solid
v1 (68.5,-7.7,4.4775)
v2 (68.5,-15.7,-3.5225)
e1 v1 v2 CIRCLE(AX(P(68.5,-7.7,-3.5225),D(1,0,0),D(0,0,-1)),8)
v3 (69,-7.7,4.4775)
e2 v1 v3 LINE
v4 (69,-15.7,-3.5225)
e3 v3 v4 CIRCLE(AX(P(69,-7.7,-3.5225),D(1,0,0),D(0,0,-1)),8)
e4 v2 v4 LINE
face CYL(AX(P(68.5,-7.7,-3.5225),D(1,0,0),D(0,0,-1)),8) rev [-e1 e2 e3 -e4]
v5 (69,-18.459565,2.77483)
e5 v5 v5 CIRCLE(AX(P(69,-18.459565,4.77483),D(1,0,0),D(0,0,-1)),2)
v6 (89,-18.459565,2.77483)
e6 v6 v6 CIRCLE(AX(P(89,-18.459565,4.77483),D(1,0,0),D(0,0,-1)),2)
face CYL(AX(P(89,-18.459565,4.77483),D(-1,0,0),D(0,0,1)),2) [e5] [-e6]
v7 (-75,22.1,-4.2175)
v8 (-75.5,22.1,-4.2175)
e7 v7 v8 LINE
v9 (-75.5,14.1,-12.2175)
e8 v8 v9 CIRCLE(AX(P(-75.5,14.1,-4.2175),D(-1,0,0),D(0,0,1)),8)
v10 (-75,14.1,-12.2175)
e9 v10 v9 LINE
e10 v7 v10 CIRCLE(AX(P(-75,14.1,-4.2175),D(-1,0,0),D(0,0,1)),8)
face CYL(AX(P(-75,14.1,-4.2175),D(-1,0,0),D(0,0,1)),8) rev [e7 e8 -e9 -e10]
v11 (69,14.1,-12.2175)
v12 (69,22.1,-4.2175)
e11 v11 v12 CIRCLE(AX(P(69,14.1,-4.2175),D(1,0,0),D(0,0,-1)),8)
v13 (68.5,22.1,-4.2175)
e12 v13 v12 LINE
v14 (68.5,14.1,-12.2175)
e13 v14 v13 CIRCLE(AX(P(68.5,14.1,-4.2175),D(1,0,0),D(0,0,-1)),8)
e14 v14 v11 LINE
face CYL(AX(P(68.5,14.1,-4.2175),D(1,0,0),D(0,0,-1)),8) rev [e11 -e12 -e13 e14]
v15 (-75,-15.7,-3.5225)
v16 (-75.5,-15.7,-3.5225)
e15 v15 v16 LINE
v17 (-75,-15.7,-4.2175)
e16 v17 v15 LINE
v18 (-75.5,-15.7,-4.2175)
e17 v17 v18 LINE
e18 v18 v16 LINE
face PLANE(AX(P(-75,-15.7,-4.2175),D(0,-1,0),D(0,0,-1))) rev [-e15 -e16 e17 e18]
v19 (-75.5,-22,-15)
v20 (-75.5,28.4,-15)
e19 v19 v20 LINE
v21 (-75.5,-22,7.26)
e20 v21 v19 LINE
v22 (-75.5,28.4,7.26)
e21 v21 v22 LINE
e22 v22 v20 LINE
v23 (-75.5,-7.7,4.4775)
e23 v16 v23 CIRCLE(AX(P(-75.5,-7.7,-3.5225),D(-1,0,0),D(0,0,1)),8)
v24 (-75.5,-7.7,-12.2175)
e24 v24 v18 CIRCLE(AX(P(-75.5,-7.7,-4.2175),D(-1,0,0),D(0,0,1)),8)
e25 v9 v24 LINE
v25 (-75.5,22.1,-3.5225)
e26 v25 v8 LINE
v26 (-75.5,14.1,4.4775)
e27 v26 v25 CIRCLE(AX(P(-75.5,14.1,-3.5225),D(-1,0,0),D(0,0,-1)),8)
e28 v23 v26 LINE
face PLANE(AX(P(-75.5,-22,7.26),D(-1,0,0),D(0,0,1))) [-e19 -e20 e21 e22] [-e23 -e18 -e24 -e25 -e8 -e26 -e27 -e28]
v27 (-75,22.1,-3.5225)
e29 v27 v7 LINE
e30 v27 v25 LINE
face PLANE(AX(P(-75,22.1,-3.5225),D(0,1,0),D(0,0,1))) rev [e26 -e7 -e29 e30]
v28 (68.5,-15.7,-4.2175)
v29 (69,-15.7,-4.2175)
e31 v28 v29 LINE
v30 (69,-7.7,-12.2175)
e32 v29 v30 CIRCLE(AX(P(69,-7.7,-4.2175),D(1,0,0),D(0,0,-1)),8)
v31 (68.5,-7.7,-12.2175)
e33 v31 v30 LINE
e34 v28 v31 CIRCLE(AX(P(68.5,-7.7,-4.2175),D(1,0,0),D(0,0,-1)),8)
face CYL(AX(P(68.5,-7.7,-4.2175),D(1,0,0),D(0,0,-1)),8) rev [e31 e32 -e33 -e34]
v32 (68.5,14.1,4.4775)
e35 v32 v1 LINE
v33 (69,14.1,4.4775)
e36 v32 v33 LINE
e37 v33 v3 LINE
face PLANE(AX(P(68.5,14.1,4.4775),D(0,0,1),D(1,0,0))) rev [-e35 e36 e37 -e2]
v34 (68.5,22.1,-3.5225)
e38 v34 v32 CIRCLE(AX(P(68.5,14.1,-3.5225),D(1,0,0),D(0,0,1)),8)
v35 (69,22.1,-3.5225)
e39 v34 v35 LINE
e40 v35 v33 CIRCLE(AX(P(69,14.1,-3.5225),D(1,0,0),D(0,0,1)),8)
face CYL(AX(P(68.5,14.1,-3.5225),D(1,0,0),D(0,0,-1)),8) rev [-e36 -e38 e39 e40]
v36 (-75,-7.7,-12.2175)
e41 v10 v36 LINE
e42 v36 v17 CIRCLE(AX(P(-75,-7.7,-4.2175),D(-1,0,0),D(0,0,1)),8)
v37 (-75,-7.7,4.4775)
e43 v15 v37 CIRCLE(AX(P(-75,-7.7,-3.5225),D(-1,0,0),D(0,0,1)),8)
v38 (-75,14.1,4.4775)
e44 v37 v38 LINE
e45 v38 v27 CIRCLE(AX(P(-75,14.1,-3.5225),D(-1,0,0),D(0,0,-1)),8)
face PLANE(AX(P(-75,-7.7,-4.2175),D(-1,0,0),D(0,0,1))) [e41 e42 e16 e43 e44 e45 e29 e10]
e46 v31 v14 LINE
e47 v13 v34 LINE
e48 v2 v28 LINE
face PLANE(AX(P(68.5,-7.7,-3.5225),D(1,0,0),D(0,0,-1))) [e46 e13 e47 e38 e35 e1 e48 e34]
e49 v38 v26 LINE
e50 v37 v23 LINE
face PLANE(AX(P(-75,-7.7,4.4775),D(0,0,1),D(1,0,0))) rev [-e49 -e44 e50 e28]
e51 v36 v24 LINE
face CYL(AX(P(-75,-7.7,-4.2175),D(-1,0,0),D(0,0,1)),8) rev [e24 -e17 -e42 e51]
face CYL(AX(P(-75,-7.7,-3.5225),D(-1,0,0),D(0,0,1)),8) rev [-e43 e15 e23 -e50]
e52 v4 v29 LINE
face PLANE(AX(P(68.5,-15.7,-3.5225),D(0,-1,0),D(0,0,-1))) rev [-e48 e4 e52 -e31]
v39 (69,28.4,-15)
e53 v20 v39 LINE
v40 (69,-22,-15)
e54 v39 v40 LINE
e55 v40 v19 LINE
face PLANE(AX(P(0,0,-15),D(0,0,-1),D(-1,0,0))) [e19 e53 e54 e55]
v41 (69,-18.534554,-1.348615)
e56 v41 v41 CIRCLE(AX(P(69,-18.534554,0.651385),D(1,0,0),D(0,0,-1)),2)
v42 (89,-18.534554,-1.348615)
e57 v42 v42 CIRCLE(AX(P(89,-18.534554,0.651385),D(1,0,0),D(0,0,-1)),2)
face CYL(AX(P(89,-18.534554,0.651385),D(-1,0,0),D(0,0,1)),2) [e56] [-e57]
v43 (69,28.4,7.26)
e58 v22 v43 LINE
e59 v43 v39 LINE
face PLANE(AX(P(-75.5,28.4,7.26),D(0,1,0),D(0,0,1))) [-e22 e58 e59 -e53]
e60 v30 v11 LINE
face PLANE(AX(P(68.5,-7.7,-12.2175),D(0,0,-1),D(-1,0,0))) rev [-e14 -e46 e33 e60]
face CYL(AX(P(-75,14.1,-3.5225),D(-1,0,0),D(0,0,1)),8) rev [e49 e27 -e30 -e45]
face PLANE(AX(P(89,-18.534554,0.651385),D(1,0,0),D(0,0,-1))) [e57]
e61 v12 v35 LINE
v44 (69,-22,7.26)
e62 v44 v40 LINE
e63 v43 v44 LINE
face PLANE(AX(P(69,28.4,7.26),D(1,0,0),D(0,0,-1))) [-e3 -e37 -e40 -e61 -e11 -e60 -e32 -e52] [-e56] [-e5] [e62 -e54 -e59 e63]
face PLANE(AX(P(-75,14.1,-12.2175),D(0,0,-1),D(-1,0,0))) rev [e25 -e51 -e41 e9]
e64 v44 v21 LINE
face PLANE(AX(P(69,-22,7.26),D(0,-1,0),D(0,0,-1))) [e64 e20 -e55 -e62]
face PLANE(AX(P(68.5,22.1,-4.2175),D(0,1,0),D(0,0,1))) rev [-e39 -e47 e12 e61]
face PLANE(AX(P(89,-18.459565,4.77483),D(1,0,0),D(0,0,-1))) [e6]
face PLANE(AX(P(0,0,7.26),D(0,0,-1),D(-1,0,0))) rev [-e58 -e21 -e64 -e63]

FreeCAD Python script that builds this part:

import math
import FreeCAD as App
import Part
import Sketcher

V = App.Vector

doc = App.newDocument("Part")
body = doc.addObject("PartDesign::Body", "Body")

# Sketch on XY plane
sketch1 = doc.addObject("Sketcher::SketchObject", "Sketch")
body.addObject(sketch1)
sketch1.AttachmentSupport = (doc.XY_Plane, [""])
sketch1.MapMode = "FlatFace"
sketch1.AttachmentOffset = App.Placement(V(0, 0, -15), App.Rotation())
sketch1.addGeometry(Part.LineSegment(V(69, 28.4, 0), V(69, -22, 0)), False)
sketch1.addGeometry(Part.LineSegment(V(69, -22, 0), V(-75.5, -22, 0)), False)
sketch1.addGeometry(Part.LineSegment(V(-75.5, -22, 0), V(-75.5, 28.4, 0)), False)
sketch1.addGeometry(Part.LineSegment(V(-75.5, 28.4, 0), V(69, 28.4, 0)), False)
sketch1.addConstraint(Sketcher.Constraint("Coincident", 0, 2, 1, 1))
sketch1.addConstraint(Sketcher.Constraint("Coincident", 1, 2, 2, 1))
sketch1.addConstraint(Sketcher.Constraint("Coincident", 2, 2, 3, 1))
sketch1.addConstraint(Sketcher.Constraint("Coincident", 3, 2, 0, 1))
sketch1.addConstraint(Sketcher.Constraint("Vertical", 0))
sketch1.addConstraint(Sketcher.Constraint("Horizontal", 1))
sketch1.addConstraint(Sketcher.Constraint("Vertical", 2))
sketch1.addConstraint(Sketcher.Constraint("Horizontal", 3))
sketch1.addConstraint(Sketcher.Constraint("DistanceX", 1, 2, 1, 1, 144.5))
sketch1.addConstraint(Sketcher.Constraint("DistanceY", 0, 2, 0, 1, 50.4))
sketch1.addConstraint(Sketcher.Constraint("DistanceX", -1, 1, 0, 2, 69.0))
sketch1.addConstraint(Sketcher.Constraint("DistanceY", 0, 2, -1, 1, 22.0))
pad1 = doc.addObject("PartDesign::Pad", "Pad")
body.addObject(pad1)
pad1.Profile = sketch1
pad1.Length = 22.26

# Sketch on YZ plane
sketch2 = doc.addObject("Sketcher::SketchObject", "Sketch001")
body.addObject(sketch2)
sketch2.AttachmentSupport = (doc.YZ_Plane, [""])
sketch2.MapMode = "FlatFace"
sketch2.AttachmentOffset = App.Placement(V(0, 0, 69), App.Rotation())
sketch2.addGeometry(Part.LineSegment(V(14.1, 4.4775, 0), V(-7.7, 4.4775, 0)), False)
sketch2.addGeometry(Part.ArcOfCircle(Part.Circle(V(-7.7, -3.5225, 0), V(0, 0, 1), 8), math.radians(90), math.radians(180)), False)
sketch2.addGeometry(Part.LineSegment(V(-15.7, -3.5225, 0), V(-15.7, -4.2175, 0)), False)
sketch2.addGeometry(Part.ArcOfCircle(Part.Circle(V(-7.7, -4.2175, 0), V(0, 0, 1), 8), math.radians(-180), math.radians(-90)), False)
sketch2.addGeometry(Part.LineSegment(V(-7.7, -12.2175, 0), V(14.1, -12.2175, 0)), False)
sketch2.addGeometry(Part.ArcOfCircle(Part.Circle(V(14.1, -4.2175, 0), V(0, 0, 1), 8), math.radians(-90), math.radians(0)), False)
sketch2.addGeometry(Part.LineSegment(V(22.1, -4.2175, 0), V(22.1, -3.5225, 0)), False)
sketch2.addGeometry(Part.ArcOfCircle(Part.Circle(V(14.1, -3.5225, 0), V(0, 0, 1), 8), math.radians(0), math.radians(90)), False)
sketch2.addConstraint(Sketcher.Constraint("Tangent", 0, 2, 1, 1))
sketch2.addConstraint(Sketcher.Constraint("Tangent", 1, 2, 2, 1))
sketch2.addConstraint(Sketcher.Constraint("Tangent", 2, 2, 3, 1))
sketch2.addConstraint(Sketcher.Constraint("Tangent", 3, 2, 4, 1))
sketch2.addConstraint(Sketcher.Constraint("Tangent", 4, 2, 5, 1))
sketch2.addConstraint(Sketcher.Constraint("Tangent", 5, 2, 6, 1))
sketch2.addConstraint(Sketcher.Constraint("Tangent", 6, 2, 7, 1))
sketch2.addConstraint(Sketcher.Constraint("Tangent", 7, 2, 0, 1))
sketch2.addConstraint(Sketcher.Constraint("Horizontal", 0))
sketch2.addConstraint(Sketcher.Constraint("Vertical", 2))
sketch2.addConstraint(Sketcher.Constraint("Horizontal", 4))
sketch2.addConstraint(Sketcher.Constraint("Vertical", 6))
sketch2.addConstraint(Sketcher.Constraint("Equal", 1, 3))
sketch2.addConstraint(Sketcher.Constraint("Equal", 3, 5))
sketch2.addConstraint(Sketcher.Constraint("Equal", 5, 7))
sketch2.addConstraint(Sketcher.Constraint("Radius", 1, 8.0))
sketch2.addConstraint(Sketcher.Constraint("DistanceX", 0, 2, 0, 1, 21.8))
sketch2.addConstraint(Sketcher.Constraint("DistanceX", 1, 3, -1, 1, 7.7))
sketch2.addConstraint(Sketcher.Constraint("DistanceY", 2, 2, 2, 1, 0.695))
sketch2.addConstraint(Sketcher.Constraint("DistanceY", 1, 3, -1, 1, 3.5225))
pocket1 = doc.addObject("PartDesign::Pocket", "Pocket")
body.addObject(pocket1)
pocket1.Profile = sketch2
pocket1.Length = 0.5

# Sketch on YZ plane
sketch3 = doc.addObject("Sketcher::SketchObject", "Sketch002")
body.addObject(sketch3)
sketch3.AttachmentSupport = (doc.YZ_Plane, [""])
sketch3.MapMode = "FlatFace"
sketch3.AttachmentOffset = App.Placement(V(0, 0, -75), App.Rotation())
sketch3.addGeometry(Part.LineSegment(V(22.1, -3.5225, 0), V(22.1, -4.2175, 0)), False)
sketch3.addGeometry(Part.ArcOfCircle(Part.Circle(V(14.1, -4.2175, 0), V(0, 0, 1), 8), math.radians(-90), math.radians(0)), False)
sketch3.addGeometry(Part.LineSegment(V(14.1, -12.2175, 0), V(-7.7, -12.2175, 0)), False)
sketch3.addGeometry(Part.ArcOfCircle(Part.Circle(V(-7.7, -4.2175, 0), V(0, 0, 1), 8), math.radians(-180), math.radians(-90)), False)
sketch3.addGeometry(Part.LineSegment(V(-15.7, -4.2175, 0), V(-15.7, -3.5225, 0)), False)
sketch3.addGeometry(Part.ArcOfCircle(Part.Circle(V(-7.7, -3.5225, 0), V(0, 0, 1), 8), math.radians(90), math.radians(180)), False)
sketch3.addGeometry(Part.LineSegment(V(-7.7, 4.4775, 0), V(14.1, 4.4775, 0)), False)
sketch3.addGeometry(Part.ArcOfCircle(Part.Circle(V(14.1, -3.5225, 0), V(0, 0, 1), 8), math.radians(0), math.radians(90)), False)
sketch3.addConstraint(Sketcher.Constraint("Tangent", 0, 2, 1, 2))
sketch3.addConstraint(Sketcher.Constraint("Tangent", 1, 1, 2, 1))
sketch3.addConstraint(Sketcher.Constraint("Tangent", 2, 2, 3, 2))
sketch3.addConstraint(Sketcher.Constraint("Tangent", 3, 1, 4, 1))
sketch3.addConstraint(Sketcher.Constraint("Tangent", 4, 2, 5, 2))
sketch3.addConstraint(Sketcher.Constraint("Tangent", 5, 1, 6, 1))
sketch3.addConstraint(Sketcher.Constraint("Tangent", 6, 2, 7, 2))
sketch3.addConstraint(Sketcher.Constraint("Tangent", 7, 1, 0, 1))
sketch3.addConstraint(Sketcher.Constraint("Vertical", 0))
sketch3.addConstraint(Sketcher.Constraint("Horizontal", 2))
sketch3.addConstraint(Sketcher.Constraint("Vertical", 4))
sketch3.addConstraint(Sketcher.Constraint("Horizontal", 6))
sketch3.addConstraint(Sketcher.Constraint("Equal", 1, 3))
sketch3.addConstraint(Sketcher.Constraint("Equal", 3, 5))
sketch3.addConstraint(Sketcher.Constraint("Equal", 5, 7))
sketch3.addConstraint(Sketcher.Constraint("Radius", 1, 8.0))
sketch3.addConstraint(Sketcher.Constraint("DistanceX", 2, 2, 2, 1, 21.8))
sketch3.addConstraint(Sketcher.Constraint("DistanceX", -1, 1, 1, 3, 14.1))
sketch3.addConstraint(Sketcher.Constraint("DistanceY", 0, 2, 0, 1, 0.695))
sketch3.addConstraint(Sketcher.Constraint("DistanceY", 1, 3, -1, 1, 4.2175))
pocket2 = doc.addObject("PartDesign::Pocket", "Pocket001")
body.addObject(pocket2)
pocket2.Profile = sketch3
pocket2.Length = 0.5

# Sketch on YZ plane
sketch4 = doc.addObject("Sketcher::SketchObject", "Sketch003")
body.addObject(sketch4)
sketch4.AttachmentSupport = (doc.YZ_Plane, [""])
sketch4.MapMode = "FlatFace"
sketch4.AttachmentOffset = App.Placement(V(0, 0, 69), App.Rotation())
sketch4.addGeometry(Part.Circle(V(-18.534554, 0.651385, 0), V(0, 0, 1), 2), False)
sketch4.addConstraint(Sketcher.Constraint("Diameter", 0, 4.0))
sketch4.addConstraint(Sketcher.Constraint("DistanceX", 0, 3, -1, 1, 18.534554))
sketch4.addConstraint(Sketcher.Constraint("DistanceY", -1, 1, 0, 3, 0.651385))
pad2 = doc.addObject("PartDesign::Pad", "Pad001")
body.addObject(pad2)
pad2.Profile = sketch4
pad2.Length = 20

# Sketch on YZ plane
sketch5 = doc.addObject("Sketcher::SketchObject", "Sketch004")
body.addObject(sketch5)
sketch5.AttachmentSupport = (doc.YZ_Plane, [""])
sketch5.MapMode = "FlatFace"
sketch5.AttachmentOffset = App.Placement(V(0, 0, 69), App.Rotation())
sketch5.addGeometry(Part.Circle(V(-18.459565, 4.77483, 0), V(0, 0, 1), 2), False)
sketch5.addConstraint(Sketcher.Constraint("Diameter", 0, 4.0))
sketch5.addConstraint(Sketcher.Constraint("DistanceY", -1, 1, 0, 3, 4.77483))
sketch5.addConstraint(Sketcher.Constraint("DistanceX", 0, 3, -1, 1, 18.459565))
pad3 = doc.addObject("PartDesign::Pad", "Pad002")
body.addObject(pad3)
pad3.Profile = sketch5
pad3.Length = 20

doc.recompute()
